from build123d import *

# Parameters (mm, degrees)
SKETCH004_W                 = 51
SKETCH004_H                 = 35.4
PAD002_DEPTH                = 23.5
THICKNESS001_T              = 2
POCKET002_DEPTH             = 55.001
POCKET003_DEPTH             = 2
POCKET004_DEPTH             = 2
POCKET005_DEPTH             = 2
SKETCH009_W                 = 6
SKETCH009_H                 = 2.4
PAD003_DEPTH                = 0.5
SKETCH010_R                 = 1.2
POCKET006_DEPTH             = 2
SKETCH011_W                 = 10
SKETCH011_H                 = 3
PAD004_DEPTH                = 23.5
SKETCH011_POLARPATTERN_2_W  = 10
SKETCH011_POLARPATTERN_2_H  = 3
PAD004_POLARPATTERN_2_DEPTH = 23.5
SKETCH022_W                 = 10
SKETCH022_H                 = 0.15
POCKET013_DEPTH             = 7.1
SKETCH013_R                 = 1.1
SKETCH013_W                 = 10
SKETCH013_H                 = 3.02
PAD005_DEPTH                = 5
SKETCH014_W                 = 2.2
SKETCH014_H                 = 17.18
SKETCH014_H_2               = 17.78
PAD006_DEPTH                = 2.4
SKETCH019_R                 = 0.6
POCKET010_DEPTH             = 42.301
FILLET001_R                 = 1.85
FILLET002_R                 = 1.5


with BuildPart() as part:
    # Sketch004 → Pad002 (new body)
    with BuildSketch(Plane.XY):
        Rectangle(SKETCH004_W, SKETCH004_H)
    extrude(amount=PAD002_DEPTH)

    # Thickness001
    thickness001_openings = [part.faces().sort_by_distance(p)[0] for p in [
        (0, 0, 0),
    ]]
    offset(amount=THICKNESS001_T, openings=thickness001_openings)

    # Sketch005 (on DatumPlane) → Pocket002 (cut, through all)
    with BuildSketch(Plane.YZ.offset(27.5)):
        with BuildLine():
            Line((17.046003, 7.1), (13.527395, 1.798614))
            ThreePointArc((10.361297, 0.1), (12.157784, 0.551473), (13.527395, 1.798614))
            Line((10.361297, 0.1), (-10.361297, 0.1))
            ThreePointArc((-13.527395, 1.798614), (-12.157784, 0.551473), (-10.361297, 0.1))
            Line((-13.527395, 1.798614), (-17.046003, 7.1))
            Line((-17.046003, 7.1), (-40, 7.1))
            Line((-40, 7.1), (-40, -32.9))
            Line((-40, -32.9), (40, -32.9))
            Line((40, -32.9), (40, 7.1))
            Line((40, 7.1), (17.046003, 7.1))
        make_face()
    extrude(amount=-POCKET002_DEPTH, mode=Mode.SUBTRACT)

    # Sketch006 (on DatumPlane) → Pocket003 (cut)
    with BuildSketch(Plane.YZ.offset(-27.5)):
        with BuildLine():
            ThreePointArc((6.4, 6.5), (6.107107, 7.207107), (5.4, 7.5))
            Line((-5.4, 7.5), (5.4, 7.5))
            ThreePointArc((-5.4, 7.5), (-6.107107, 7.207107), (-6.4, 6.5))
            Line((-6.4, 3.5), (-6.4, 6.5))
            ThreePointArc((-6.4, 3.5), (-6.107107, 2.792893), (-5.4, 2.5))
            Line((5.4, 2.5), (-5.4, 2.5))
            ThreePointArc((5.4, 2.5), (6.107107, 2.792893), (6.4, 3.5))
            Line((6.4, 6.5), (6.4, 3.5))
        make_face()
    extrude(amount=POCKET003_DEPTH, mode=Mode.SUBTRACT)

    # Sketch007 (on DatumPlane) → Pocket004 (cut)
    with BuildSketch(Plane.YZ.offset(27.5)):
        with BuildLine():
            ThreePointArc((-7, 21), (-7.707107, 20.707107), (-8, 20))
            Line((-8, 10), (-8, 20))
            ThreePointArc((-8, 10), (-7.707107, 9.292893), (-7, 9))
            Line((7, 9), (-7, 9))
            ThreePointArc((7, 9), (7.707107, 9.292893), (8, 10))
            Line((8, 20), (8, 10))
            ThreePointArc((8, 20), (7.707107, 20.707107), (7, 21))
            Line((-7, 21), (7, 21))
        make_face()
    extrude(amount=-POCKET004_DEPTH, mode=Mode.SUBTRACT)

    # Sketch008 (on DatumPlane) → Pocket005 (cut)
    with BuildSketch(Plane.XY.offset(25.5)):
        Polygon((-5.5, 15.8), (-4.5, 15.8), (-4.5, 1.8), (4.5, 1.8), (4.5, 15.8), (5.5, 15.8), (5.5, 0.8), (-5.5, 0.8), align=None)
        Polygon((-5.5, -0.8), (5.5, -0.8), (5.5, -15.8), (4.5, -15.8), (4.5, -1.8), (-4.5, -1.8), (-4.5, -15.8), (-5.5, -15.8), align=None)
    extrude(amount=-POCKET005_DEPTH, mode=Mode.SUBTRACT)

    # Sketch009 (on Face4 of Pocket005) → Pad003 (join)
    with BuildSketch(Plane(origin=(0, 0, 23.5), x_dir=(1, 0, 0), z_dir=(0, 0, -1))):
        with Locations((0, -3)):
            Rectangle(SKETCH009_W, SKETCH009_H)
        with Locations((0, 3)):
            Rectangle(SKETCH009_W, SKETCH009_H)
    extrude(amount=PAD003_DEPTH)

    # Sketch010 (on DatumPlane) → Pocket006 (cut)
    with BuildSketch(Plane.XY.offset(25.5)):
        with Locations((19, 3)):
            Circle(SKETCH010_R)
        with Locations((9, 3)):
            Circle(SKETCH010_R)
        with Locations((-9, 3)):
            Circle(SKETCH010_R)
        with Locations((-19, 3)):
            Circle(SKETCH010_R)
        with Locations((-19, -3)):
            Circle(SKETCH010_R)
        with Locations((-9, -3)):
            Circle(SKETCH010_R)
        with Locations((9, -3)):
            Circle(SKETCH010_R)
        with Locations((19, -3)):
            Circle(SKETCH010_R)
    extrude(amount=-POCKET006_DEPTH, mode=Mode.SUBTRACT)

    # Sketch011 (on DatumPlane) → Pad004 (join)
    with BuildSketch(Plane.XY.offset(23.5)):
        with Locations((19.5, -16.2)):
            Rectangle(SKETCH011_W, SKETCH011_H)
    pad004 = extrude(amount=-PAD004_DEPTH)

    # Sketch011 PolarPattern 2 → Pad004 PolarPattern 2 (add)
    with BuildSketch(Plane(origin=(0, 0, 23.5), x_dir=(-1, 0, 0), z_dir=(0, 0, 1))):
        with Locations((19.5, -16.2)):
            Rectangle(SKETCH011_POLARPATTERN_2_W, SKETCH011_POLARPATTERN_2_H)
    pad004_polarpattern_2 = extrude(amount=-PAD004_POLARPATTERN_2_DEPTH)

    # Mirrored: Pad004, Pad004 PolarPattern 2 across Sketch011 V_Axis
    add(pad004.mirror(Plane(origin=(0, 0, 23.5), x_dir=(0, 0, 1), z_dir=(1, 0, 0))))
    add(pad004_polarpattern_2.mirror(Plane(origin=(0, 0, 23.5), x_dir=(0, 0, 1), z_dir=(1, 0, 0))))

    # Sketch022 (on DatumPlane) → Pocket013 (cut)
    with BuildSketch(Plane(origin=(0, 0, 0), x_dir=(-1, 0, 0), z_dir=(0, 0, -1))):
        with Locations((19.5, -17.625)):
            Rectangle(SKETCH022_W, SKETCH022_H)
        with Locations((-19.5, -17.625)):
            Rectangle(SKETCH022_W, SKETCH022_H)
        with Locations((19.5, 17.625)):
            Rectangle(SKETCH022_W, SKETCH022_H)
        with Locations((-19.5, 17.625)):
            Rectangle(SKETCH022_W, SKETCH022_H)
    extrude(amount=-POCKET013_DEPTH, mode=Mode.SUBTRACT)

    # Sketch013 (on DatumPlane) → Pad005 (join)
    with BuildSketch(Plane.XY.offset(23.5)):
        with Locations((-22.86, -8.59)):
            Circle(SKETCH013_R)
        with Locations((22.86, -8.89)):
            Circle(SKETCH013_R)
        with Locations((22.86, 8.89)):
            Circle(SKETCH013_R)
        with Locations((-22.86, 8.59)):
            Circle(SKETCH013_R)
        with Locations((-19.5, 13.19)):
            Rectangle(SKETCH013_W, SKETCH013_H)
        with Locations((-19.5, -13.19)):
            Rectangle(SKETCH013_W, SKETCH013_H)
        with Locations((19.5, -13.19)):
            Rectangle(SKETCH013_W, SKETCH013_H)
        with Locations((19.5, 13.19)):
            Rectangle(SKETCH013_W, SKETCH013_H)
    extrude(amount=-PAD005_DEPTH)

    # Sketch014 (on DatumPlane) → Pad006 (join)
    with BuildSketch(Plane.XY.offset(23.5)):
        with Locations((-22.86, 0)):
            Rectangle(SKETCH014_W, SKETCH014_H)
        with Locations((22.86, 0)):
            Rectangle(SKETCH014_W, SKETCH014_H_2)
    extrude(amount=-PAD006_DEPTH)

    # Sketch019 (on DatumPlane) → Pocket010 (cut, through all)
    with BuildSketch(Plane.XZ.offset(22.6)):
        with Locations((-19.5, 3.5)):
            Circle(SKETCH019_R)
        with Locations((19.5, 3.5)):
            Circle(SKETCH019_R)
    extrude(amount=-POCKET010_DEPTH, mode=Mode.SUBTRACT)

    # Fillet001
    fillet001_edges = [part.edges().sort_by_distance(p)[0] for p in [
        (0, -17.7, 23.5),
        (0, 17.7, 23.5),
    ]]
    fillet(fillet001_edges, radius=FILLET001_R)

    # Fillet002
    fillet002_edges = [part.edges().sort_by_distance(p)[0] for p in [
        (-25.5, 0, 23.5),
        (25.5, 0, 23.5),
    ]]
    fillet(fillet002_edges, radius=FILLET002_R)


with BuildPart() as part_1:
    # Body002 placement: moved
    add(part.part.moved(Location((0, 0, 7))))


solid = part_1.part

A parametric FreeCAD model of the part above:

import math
import FreeCAD as App
import Part
import Sketcher

V = App.Vector
Q = App.Units.Quantity


def edges_at(feature, points):
    """Names of the edges that pass closest to the given points."""
    edges = feature.Shape.Edges
    near = lambda p: min(range(len(edges)), key=lambda i: edges[i].distToShape(Part.Vertex(*p))[0])
    return sorted({f"Edge{near(p) + 1}" for p in points})


def faces_at(feature, points):
    """Names of the faces that lie closest to the given points."""
    faces = feature.Shape.Faces
    near = lambda p: min(range(len(faces)), key=lambda i: faces[i].distToShape(Part.Vertex(*p))[0])
    return sorted({f"Face{near(p) + 1}" for p in points})

doc = App.newDocument("Part")
body = doc.addObject("PartDesign::Body", "Body")

# Sketch on XY plane
sketch1 = body.newObject("Sketcher::SketchObject", "Sketch")
sketch1.AttachmentSupport = (doc.getObject("XY_Plane"), [""])
sketch1.MapMode = "FlatFace"
sketch1.addGeometry([
    Part.LineSegment(V(-26, 18, 0), V(-26, -18, 0)),
    Part.LineSegment(V(-26, -18, 0), V(26, -18, 0)),
    Part.LineSegment(V(26, -18, 0), V(26, 18, 0)),
    Part.LineSegment(V(26, 18, 0), V(-26, 18, 0)),
], False)
sketch1.addConstraint([
    Sketcher.Constraint("Coincident", 0, 2, 1, 1),
    Sketcher.Constraint("Coincident", 1, 2, 2, 1),
    Sketcher.Constraint("Coincident", 2, 2, 3, 1),
    Sketcher.Constraint("Coincident", 3, 2, 0, 1),
    Sketcher.Constraint("Vertical", 0),
    Sketcher.Constraint("Horizontal", 1),
    Sketcher.Constraint("Vertical", 2),
    Sketcher.Constraint("Horizontal", 3),
    Sketcher.Constraint("Symmetric", 0, 2, 2, 2, -1, 1),
    Sketcher.Constraint("DistanceX", 1, 1, 1, 2, Q("51 mm")),
    Sketcher.Constraint("DistanceY", 0, 2, 0, 1, Q("35.4 mm")),
])
pad1 = body.newObject("PartDesign::Pad", "Pad")
pad1.Profile = sketch1
pad1.Length = 23.5
doc.recompute()

thickness = body.newObject("PartDesign::Thickness", "Thickness")
thickness.Base = (pad1, faces_at(pad1, [(0, 0, 0)]))
thickness.Value = 2
thickness.Reversed = False
thickness.Join = "Arc"

# Sketch on YZ plane
sketch2 = body.newObject("Sketcher::SketchObject", "Sketch001")
sketch2.AttachmentSupport = (doc.getObject("YZ_Plane"), [""])
sketch2.MapMode = "FlatFace"
sketch2.AttachmentOffset = App.Placement(V(0, 0, 27.5), App.Rotation())
sketch2.addGeometry([
    Part.LineSegment(V(17, 7.1, 0), V(13.5, 1.8, 0)),  # 0
    Part.ArcOfCircle(Part.Circle(V(10.4, 3.9, 0), V(0, 0, 1), 3.8), math.radians(-90), math.radians(-34)),  # 1
    Part.LineSegment(V(10.4, 0.1, 0), V(-10.4, 0.1, 0)),  # 2
    Part.ArcOfCircle(Part.Circle(V(-10.4, 3.9, 0), V(0, 0, 1), 3.8), math.radians(-146), math.radians(-90)),  # 3
    Part.LineSegment(V(-13.5, 1.8, 0), V(-17, 7.1, 0)),  # 4
    Part.LineSegment(V(-17, 7.1, 0), V(-40, 7.1, 0)),  # 5
    Part.LineSegment(V(-40, 7.1, 0), V(-40, -32.9, 0)),  # 6
    Part.LineSegment(V(-40, -32.9, 0), V(40, -32.9, 0)),  # 7
    Part.LineSegment(V(40, -32.9, 0), V(40, 7.1, 0)),  # 8
    Part.LineSegment(V(40, 7.1, 0), V(17, 7.1, 0)),  # 9
], False)
sketch2.addConstraint([
    Sketcher.Constraint("Tangent", 0, 2, 1, 2),
    Sketcher.Constraint("Tangent", 1, 1, 2, 1),
    Sketcher.Constraint("Tangent", 2, 2, 3, 2),
    Sketcher.Constraint("Tangent", 3, 1, 4, 1),
    Sketcher.Constraint("Coincident", 4, 2, 5, 1),
    Sketcher.Constraint("Coincident", 5, 2, 6, 1),
    Sketcher.Constraint("Coincident", 6, 2, 7, 1),
    Sketcher.Constraint("Coincident", 7, 2, 8, 1),
    Sketcher.Constraint("Coincident", 8, 2, 9, 1),
    Sketcher.Constraint("Coincident", 9, 2, 0, 1),
    Sketcher.Constraint("Horizontal", 2),
    Sketcher.Constraint("Horizontal", 5),
    Sketcher.Constraint("Vertical", 6),
    Sketcher.Constraint("Horizontal", 7),
    Sketcher.Constraint("Vertical", 8),
    Sketcher.Constraint("Horizontal", 9),
    Sketcher.Constraint("Equal", 1, 3),
    Sketcher.Constraint("Symmetric", 0, 2, 3, 1, -2),
    Sketcher.Constraint("Symmetric", 5, 2, 8, 2, -2),
    Sketcher.Constraint("Radius", 1, Q("3.800001 mm")),
    Sketcher.Constraint("DistanceX", 7, 1, 7, 2, Q("80 mm")),
    Sketcher.Constraint("DistanceY", 6, 2, 6, 1, Q("40 mm")),
    Sketcher.Constraint("DistanceY", 2, 2, 4, 2, Q("7 mm")),
    Sketcher.Constraint("DistanceY", -1, 1, 1, 3, Q("3.900001 mm")),
    Sketcher.Constraint("DistanceX", 1, 3, 0, 2, Q("3.166099 mm")),
    Sketcher.Constraint("DistanceX", 4, 2, 1, 3, Q("27.407299 mm")),
])
pocket1 = body.newObject("PartDesign::Pocket", "Pocket")
pocket1.Profile = sketch2
pocket1.Type = "ThroughAll"

# Sketch on YZ plane
sketch3 = body.newObject("Sketcher::SketchObject", "Sketch002")
sketch3.AttachmentSupport = (doc.getObject("YZ_Plane"), [""])
sketch3.MapMode = "FlatFace"
sketch3.AttachmentOffset = App.Placement(V(0, 0, -27.5), App.Rotation())
sketch3.addGeometry([
    Part.ArcOfCircle(Part.Circle(V(5.4, 6.5, 0), V(0, 0, 1), 1), math.radians(0), math.radians(90)),  # 0
    Part.LineSegment(V(5.4, 7.5, 0), V(-5.4, 7.5, 0)),  # 1
    Part.ArcOfCircle(Part.Circle(V(-5.4, 6.5, 0), V(0, 0, 1), 1), math.radians(90), math.radians(180)),  # 2
    Part.LineSegment(V(-6.4, 6.5, 0), V(-6.4, 3.5, 0)),  # 3
    Part.ArcOfCircle(Part.Circle(V(-5.4, 3.5, 0), V(0, 0, 1), 1), math.radians(180), math.radians(270)),  # 4
    Part.LineSegment(V(-5.4, 2.5, 0), V(5.4, 2.5, 0)),  # 5
    Part.ArcOfCircle(Part.Circle(V(5.4, 3.5, 0), V(0, 0, 1), 1), math.radians(-90), math.radians(0)),  # 6
    Part.LineSegment(V(6.4, 3.5, 0), V(6.4, 6.5, 0)),  # 7
], False)
sketch3.addConstraint([
    Sketcher.Constraint("Tangent", 0, 2, 1, 1),
    Sketcher.Constraint("Tangent", 1, 2, 2, 1),
    Sketcher.Constraint("Tangent", 2, 2, 3, 1),
    Sketcher.Constraint("Tangent", 3, 2, 4, 1),
    Sketcher.Constraint("Tangent", 4, 2, 5, 1),
    Sketcher.Constraint("Tangent", 5, 2, 6, 1),
    Sketcher.Constraint("Tangent", 6, 2, 7, 1),
    Sketcher.Constraint("Tangent", 7, 2, 0, 1),
    Sketcher.Constraint("Horizontal", 1),
    Sketcher.Constraint("Vertical", 3),
    Sketcher.Constraint("Horizontal", 5),
    Sketcher.Constraint("Vertical", 7),
    Sketcher.Constraint("Equal", 0, 2),
    Sketcher.Constraint("Equal", 2, 4),
    Sketcher.Constraint("Equal", 4, 6),
    Sketcher.Constraint("Radius", 0, Q("0.999999 mm")),
    Sketcher.Constraint("DistanceY", 3, 2, 3, 1, Q("3 mm")),
    Sketcher.Constraint("DistanceX", 1, 2, 1, 1, Q("10.8 mm")),
    Sketcher.Constraint("DistanceX", -1, 1, 0, 3, Q("5.400001 mm")),
    Sketcher.Constraint("DistanceY", -1, 1, 0, 3, Q("6.500001 mm")),
])
pocket2 = body.newObject("PartDesign::Pocket", "Pocket001")
pocket2.Profile = sketch3
pocket2.Length = 2
pocket2.Reversed = True

# Sketch on YZ plane
sketch4 = body.newObject("Sketcher::SketchObject", "Sketch003")
sketch4.AttachmentSupport = (doc.getObject("YZ_Plane"), [""])
sketch4.MapMode = "FlatFace"
sketch4.AttachmentOffset = App.Placement(V(0, 0, 27.5), App.Rotation())
sketch4.addGeometry([
    Part.ArcOfCircle(Part.Circle(V(-7, 20, 0), V(0, 0, 1), 1), math.radians(90), math.radians(180)),  # 0
    Part.LineSegment(V(-8, 20, 0), V(-8, 10, 0)),  # 1
    Part.ArcOfCircle(Part.Circle(V(-7, 10, 0), V(0, 0, 1), 1), math.radians(180), math.radians(270)),  # 2
    Part.LineSegment(V(-7, 9, 0), V(7, 9, 0)),  # 3
    Part.ArcOfCircle(Part.Circle(V(7, 10, 0), V(0, 0, 1), 1), math.radians(-90), math.radians(0)),  # 4
    Part.LineSegment(V(8, 10, 0), V(8, 20, 0)),  # 5
    Part.ArcOfCircle(Part.Circle(V(7, 20, 0), V(0, 0, 1), 1), math.radians(0), math.radians(90)),  # 6
    Part.LineSegment(V(7, 21, 0), V(-7, 21, 0)),  # 7
], False)
sketch4.addConstraint([
    Sketcher.Constraint("Tangent", 0, 2, 1, 1),
    Sketcher.Constraint("Tangent", 1, 2, 2, 1),
    Sketcher.Constraint("Tangent", 2, 2, 3, 1),
    Sketcher.Constraint("Tangent", 3, 2, 4, 1),
    Sketcher.Constraint("Tangent", 4, 2, 5, 1),
    Sketcher.Constraint("Tangent", 5, 2, 6, 1),
    Sketcher.Constraint("Tangent", 6, 2, 7, 1),
    Sketcher.Constraint("Tangent", 7, 2, 0, 1),
    Sketcher.Constraint("Vertical", 1),
    Sketcher.Constraint("Horizontal", 3),
    Sketcher.Constraint("Vertical", 5),
    Sketcher.Constraint("Horizontal", 7),
    Sketcher.Constraint("Equal", 0, 2),
    Sketcher.Constraint("Equal", 2, 4),
    Sketcher.Constraint("Equal", 4, 6),
    Sketcher.Constraint("Radius", 0, Q("0.999999 mm")),
    Sketcher.Constraint("DistanceX", 3, 1, 3, 2, Q("14 mm")),
    Sketcher.Constraint("DistanceY", 1, 2, 1, 1, Q("10 mm")),
    Sketcher.Constraint("DistanceX", 0, 3, -1, 1, Q("7.000001 mm")),
    Sketcher.Constraint("DistanceY", -1, 1, 0, 3, Q("20.000001 mm")),
])
pocket3 = body.newObject("PartDesign::Pocket", "Pocket002")
pocket3.Profile = sketch4
pocket3.Length = 2

# Sketch on XY plane
sketch5 = body.newObject("Sketcher::SketchObject", "Sketch004")
sketch5.AttachmentSupport = (doc.getObject("XY_Plane"), [""])
sketch5.MapMode = "FlatFace"
sketch5.AttachmentOffset = App.Placement(V(0, 0, 25.5), App.Rotation())
sketch5.addGeometry([
    Part.LineSegment(V(-4.5, 15.8, 0), V(-5.5, 15.8, 0)),  # 0
    Part.LineSegment(V(-5.5, 15.8, 0), V(-5.5, 0.8, 0)),  # 1
    Part.LineSegment(V(-5.5, 0.8, 0), V(5.5, 0.8, 0)),  # 2
    Part.LineSegment(V(5.5, 0.8, 0), V(5.5, 15.8, 0)),  # 3
    Part.LineSegment(V(5.5, 15.8, 0), V(4.5, 15.8, 0)),  # 4
    Part.LineSegment(V(4.5, 15.8, 0), V(4.5, 1.8, 0)),  # 5
    Part.LineSegment(V(4.5, 1.8, 0), V(-4.5, 1.8, 0)),  # 6
    Part.LineSegment(V(-4.5, 1.8, 0), V(-4.5, 15.8, 0)),  # 7
    Part.LineSegment(V(5.5, -0.8, 0), V(-5.5, -0.8, 0)),  # 8
    Part.LineSegment(V(-5.5, -0.8, 0), V(-5.5, -15.8, 0)),  # 9
    Part.LineSegment(V(-5.5, -15.8, 0), V(-4.5, -15.8, 0)),  # 10
    Part.LineSegment(V(-4.5, -15.8, 0), V(-4.5, -1.8, 0)),  # 11
    Part.LineSegment(V(-4.5, -1.8, 0), V(4.5, -1.8, 0)),  # 12
    Part.LineSegment(V(4.5, -1.8, 0), V(4.5, -15.8, 0)),  # 13
    Part.LineSegment(V(4.5, -15.8, 0), V(5.5, -15.8, 0)),  # 14
    Part.LineSegment(V(5.5, -15.8, 0), V(5.5, -0.8, 0)),  # 15
], False)
sketch5.addConstraint([
    Sketcher.Constraint("Coincident", 0, 2, 1, 1),
    Sketcher.Constraint("Coincident", 1, 2, 2, 1),
    Sketcher.Constraint("Coincident", 2, 2, 3, 1),
    Sketcher.Constraint("Coincident", 3, 2, 4, 1),
    Sketcher.Constraint("Coincident", 4, 2, 5, 1),
    Sketcher.Constraint("Coincident", 5, 2, 6, 1),
    Sketcher.Constraint("Coincident", 6, 2, 7, 1),
    Sketcher.Constraint("Coincident", 7, 2, 0, 1),
    Sketcher.Constraint("Coincident", 8, 2, 9, 1),
    Sketcher.Constraint("Coincident", 9, 2, 10, 1),
    Sketcher.Constraint("Coincident", 10, 2, 11, 1),
    Sketcher.Constraint("Coincident", 11, 2, 12, 1),
    Sketcher.Constraint("Coincident", 12, 2, 13, 1),
    Sketcher.Constraint("Coincident", 13, 2, 14, 1),
    Sketcher.Constraint("Coincident", 14, 2, 15, 1),
    Sketcher.Constraint("Coincident", 15, 2, 8, 1),
    Sketcher.Constraint("Horizontal", 0),
    Sketcher.Constraint("Vertical", 1),
    Sketcher.Constraint("Horizontal", 2),
    Sketcher.Constraint("Vertical", 3),
    Sketcher.Constraint("Horizontal", 4),
    Sketcher.Constraint("Vertical", 5),
    Sketcher.Constraint("Horizontal", 6),
    Sketcher.Constraint("Vertical", 7),
    Sketcher.Constraint("Horizontal", 8),
    Sketcher.Constraint("Vertical", 9),
    Sketcher.Constraint("Horizontal", 10),
    Sketcher.Constraint("Vertical", 11),
    Sketcher.Constraint("Horizontal", 12),
    Sketcher.Constraint("Vertical", 13),
    Sketcher.Constraint("Horizontal", 14),
    Sketcher.Constraint("Vertical", 15),
    Sketcher.Constraint("Symmetric", 2, 2, 8, 2, -1, 1),
    Sketcher.Constraint("Symmetric", 4, 2, 10, 2, -1, 1),
    Sketcher.Constraint("Symmetric", 6, 2, 12, 2, -1, 1),
    Sketcher.Constraint("Symmetric", 0, 2, 14, 2, -1, 1),
    Sketcher.Constraint("Symmetric", 0, 2, 3, 2, -2),
    Sketcher.Constraint("Vertical", 7, 2, 10, 2),
    Sketcher.Constraint("DistanceX", 0, 2, 0, 1, Q("1 mm")),
    Sketcher.Constraint("DistanceX", 2, 1, 2, 2, Q("11 mm")),
    Sketcher.Constraint("DistanceY", 1, 2, 1, 1, Q("15 mm")),
    Sketcher.Constraint("DistanceY", 5, 2, 5, 1, Q("14 mm")),
    Sketcher.Constraint("DistanceY", -1, 1, 0, 2, Q("15.8 mm")),
])
pocket4 = body.newObject("PartDesign::Pocket", "Pocket003")
pocket4.Profile = sketch5
pocket4.Length = 2

# Sketch on XY plane
sketch6 = body.newObject("Sketcher::SketchObject", "Sketch005")
sketch6.AttachmentSupport = (doc.getObject("XY_Plane"), [""])
sketch6.MapMode = "FlatFace"
sketch6.AttachmentOffset = App.Placement(V(0, 0, 23.5), App.Rotation())
sketch6.addGeometry([
    Part.LineSegment(V(-3, 1.8, 0), V(-3, 4.2, 0)),  # 0
    Part.LineSegment(V(-3, 4.2, 0), V(3, 4.2, 0)),  # 1
    Part.LineSegment(V(3, 4.2, 0), V(3, 1.8, 0)),  # 2
    Part.LineSegment(V(3, 1.8, 0), V(-3, 1.8, 0)),  # 3
    Part.LineSegment(V(-3, -4.2, 0), V(-3, -1.8, 0)),  # 4
    Part.LineSegment(V(-3, -1.8, 0), V(3, -1.8, 0)),  # 5
    Part.LineSegment(V(3, -1.8, 0), V(3, -4.2, 0)),  # 6
    Part.LineSegment(V(3, -4.2, 0), V(-3, -4.2, 0)),  # 7
], False)
sketch6.addConstraint([
    Sketcher.Constraint("Coincident", 0, 2, 1, 1),
    Sketcher.Constraint("Coincident", 1, 2, 2, 1),
    Sketcher.Constraint("Coincident", 2, 2, 3, 1),
    Sketcher.Constraint("Coincident", 3, 2, 0, 1),
    Sketcher.Constraint("Coincident", 4, 2, 5, 1),
    Sketcher.Constraint("Coincident", 5, 2, 6, 1),
    Sketcher.Constraint("Coincident", 6, 2, 7, 1),
    Sketcher.Constraint("Coincident", 7, 2, 4, 1),
    Sketcher.Constraint("Vertical", 0),
    Sketcher.Constraint("Horizontal", 1),
    Sketcher.Constraint("Vertical", 2),
    Sketcher.Constraint("Horizontal", 3),
    Sketcher.Constraint("Vertical", 4),
    Sketcher.Constraint("Horizontal", 5),
    Sketcher.Constraint("Vertical", 6),
    Sketcher.Constraint("Horizontal", 7),
    Sketcher.Constraint("Symmetric", 2, 2, 4, 2, -1, 1),
    Sketcher.Constraint("Symmetric", 0, 2, 6, 2, -1, 1),
    Sketcher.Constraint("Vertical", 3, 2, 4, 2),
    Sketcher.Constraint("DistanceX", 1, 1, 1, 2, Q("6 mm")),
    Sketcher.Constraint("DistanceY", 0, 1, 0, 2, Q("2.4 mm")),
    Sketcher.Constraint("DistanceY", 4, 2, 0, 2, Q("6 mm")),
])
pad2 = body.newObject("PartDesign::Pad", "Pad001")
pad2.Profile = sketch6
pad2.Length = 0.5
pad2.Reversed = True

# Sketch on XY plane
sketch7 = body.newObject("Sketcher::SketchObject", "Sketch006")
sketch7.AttachmentSupport = (doc.getObject("XY_Plane"), [""])
sketch7.MapMode = "FlatFace"
sketch7.AttachmentOffset = App.Placement(V(0, 0, 25.5), App.Rotation())
sketch7.addGeometry([
    Part.Circle(V(19, 3, 0), V(0, 0, 1), 1.2),  # 0
    Part.Circle(V(9, 3, 0), V(0, 0, 1), 1.2),  # 1
    Part.Circle(V(-9, 3, 0), V(0, 0, 1), 1.2),  # 2
    Part.Circle(V(-19, 3, 0), V(0, 0, 1), 1.2),  # 3
    Part.Circle(V(-19, -3, 0), V(0, 0, 1), 1.2),  # 4
    Part.Circle(V(-9, -3, 0), V(0, 0, 1), 1.2),  # 5
    Part.Circle(V(9, -3, 0), V(0, 0, 1), 1.2),  # 6
    Part.Circle(V(19, -3, 0), V(0, 0, 1), 1.2),  # 7
], False)
sketch7.addConstraint([
    Sketcher.Constraint("Equal", 0, 1),
    Sketcher.Constraint("Equal", 1, 2),
    Sketcher.Constraint("Equal", 2, 3),
    Sketcher.Constraint("Equal", 3, 4),
    Sketcher.Constraint("Equal", 4, 5),
    Sketcher.Constraint("Equal", 5, 6),
    Sketcher.Constraint("Equal", 6, 7),
    Sketcher.Constraint("Symmetric", 0, 3, 4, 3, -1, 1),
    Sketcher.Constraint("Symmetric", 1, 3, 5, 3, -1, 1),
    Sketcher.Constraint("Symmetric", 2, 3, 6, 3, -1, 1),
    Sketcher.Constraint("Symmetric", 3, 3, 7, 3, -1, 1),
    Sketcher.Constraint("Symmetric", 1, 3, 2, 3, -2),
    Sketcher.Constraint("Symmetric", 0, 3, 3, 3, -2),
    Sketcher.Constraint("Horizontal", 0, 3, 1, 3),
    Sketcher.Constraint("Diameter", 0, Q("2.4 mm")),
    Sketcher.Constraint("DistanceX", -1, 1, 0, 3, Q("19 mm")),
    Sketcher.Constraint("DistanceY", -1, 1, 0, 3, Q("3 mm")),
    Sketcher.Constraint("DistanceX", -1, 1, 1, 3, Q("9 mm")),
])
pocket5 = body.newObject("PartDesign::Pocket", "Pocket004")
pocket5.Profile = sketch7
pocket5.Length = 2

# Sketch on XY plane
sketch8 = body.newObject("Sketcher::SketchObject", "Sketch007")
sketch8.AttachmentSupport = (doc.getObject("XY_Plane"), [""])
sketch8.MapMode = "FlatFace"
sketch8.AttachmentOffset = App.Placement(V(0, 0, 23.5), App.Rotation())
sketch8.addGeometry([
    Part.LineSegment(V(14.5, -14.7, 0), V(14.5, -17.7, 0)),
    Part.LineSegment(V(14.5, -17.7, 0), V(24.5, -17.7, 0)),
    Part.LineSegment(V(24.5, -17.7, 0), V(24.5, -14.7, 0)),
    Part.LineSegment(V(24.5, -14.7, 0), V(14.5, -14.7, 0)),
], False)
sketch8.addConstraint([
    Sketcher.Constraint("Coincident", 0, 2, 1, 1),
    Sketcher.Constraint("Coincident", 1, 2, 2, 1),
    Sketcher.Constraint("Coincident", 2, 2, 3, 1),
    Sketcher.Constraint("Coincident", 3, 2, 0, 1),
    Sketcher.Constraint("Vertical", 0),
    Sketcher.Constraint("Horizontal", 1),
    Sketcher.Constraint("Vertical", 2),
    Sketcher.Constraint("Horizontal", 3),
    Sketcher.Constraint("DistanceX", 1, 1, 1, 2, Q("10 mm")),
    Sketcher.Constraint("DistanceY", 0, 2, 0, 1, Q("3 mm")),
    Sketcher.Constraint("DistanceX", -1, 1, 0, 2, Q("14.5 mm")),
    Sketcher.Constraint("DistanceY", 0, 2, -1, 1, Q("17.7 mm")),
])
pad3 = body.newObject("PartDesign::Pad", "Pad002")
pad3.Profile = sketch8
pad3.Length = 23.5
pad3.Reversed = True

# Sketch on XY plane
sketch9 = body.newObject("Sketcher::SketchObject", "Sketch008")
sketch9.AttachmentSupport = (doc.getObject("XY_Plane"), [""])
sketch9.MapMode = "FlatFace"
sketch9.AttachmentOffset = App.Placement(V(0, 0, 23.5), App.Rotation())
sketch9.addGeometry([
    Part.LineSegment(V(-14.5, 14.7, 0), V(-14.5, 17.7, 0)),
    Part.LineSegment(V(-14.5, 17.7, 0), V(-24.5, 17.7, 0)),
    Part.LineSegment(V(-24.5, 17.7, 0), V(-24.5, 14.7, 0)),
    Part.LineSegment(V(-24.5, 14.7, 0), V(-14.5, 14.7, 0)),
], False)
sketch9.addConstraint([
    Sketcher.Constraint("Coincident", 0, 2, 1, 1),
    Sketcher.Constraint("Coincident", 1, 2, 2, 1),
    Sketcher.Constraint("Coincident", 2, 2, 3, 1),
    Sketcher.Constraint("Coincident", 3, 2, 0, 1),
    Sketcher.Constraint("Vertical", 0),
    Sketcher.Constraint("Horizontal", 1),
    Sketcher.Constraint("Vertical", 2),
    Sketcher.Constraint("Horizontal", 3),
    Sketcher.Constraint("DistanceX", 1, 2, 1, 1, Q("10 mm")),
    Sketcher.Constraint("DistanceY", 0, 1, 0, 2, Q("3 mm")),
    Sketcher.Constraint("DistanceX", 0, 2, -1, 1, Q("14.5 mm")),
    Sketcher.Constraint("DistanceY", -1, 1, 0, 2, Q("17.7 mm")),
])
pad4 = body.newObject("PartDesign::Pad", "Pad003")
pad4.Profile = sketch9
pad4.Length = 23.5
pad4.Reversed = True
doc.recompute()

mirrored = body.newObject("PartDesign::Mirrored", "Mirrored")
mirrored.Originals = [pad3, pad4]
mirrored.MirrorPlane = (doc.getObject("YZ_Plane"), [""])
body.Tip = mirrored

# Sketch on XY plane
sketch10 = body.newObject("Sketcher::SketchObject", "Sketch009")
sketch10.AttachmentSupport = (doc.getObject("XY_Plane"), [""])
sketch10.MapMode = "FlatFace"
sketch10.addGeometry([
    Part.LineSegment(V(-14.5, -17.55, 0), V(-14.5, -17.7, 0)),  # 0
    Part.LineSegment(V(-14.5, -17.7, 0), V(-24.5, -17.7, 0)),  # 1
    Part.LineSegment(V(-24.5, -17.7, 0), V(-24.5, -17.55, 0)),  # 2
    Part.LineSegment(V(-24.5, -17.55, 0), V(-14.5, -17.55, 0)),  # 3
    Part.LineSegment(V(24.5, -17.55, 0), V(24.5, -17.7, 0)),  # 4
    Part.LineSegment(V(24.5, -17.7, 0), V(14.5, -17.7, 0)),  # 5
    Part.LineSegment(V(14.5, -17.7, 0), V(14.5, -17.55, 0)),  # 6
    Part.LineSegment(V(14.5, -17.55, 0), V(24.5, -17.55, 0)),  # 7
    Part.LineSegment(V(-14.5, 17.7, 0), V(-14.5, 17.55, 0)),  # 8
    Part.LineSegment(V(-14.5, 17.55, 0), V(-24.5, 17.55, 0)),  # 9
    Part.LineSegment(V(-24.5, 17.55, 0), V(-24.5, 17.7, 0)),  # 10
    Part.LineSegment(V(-24.5, 17.7, 0), V(-14.5, 17.7, 0)),  # 11
    Part.LineSegment(V(24.5, 17.7, 0), V(24.5, 17.55, 0)),  # 12
    Part.LineSegment(V(24.5, 17.55, 0), V(14.5, 17.55, 0)),  # 13
    Part.LineSegment(V(14.5, 17.55, 0), V(14.5, 17.7, 0)),  # 14
    Part.LineSegment(V(14.5, 17.7, 0), V(24.5, 17.7, 0)),  # 15
], False)
sketch10.addConstraint([
    Sketcher.Constraint("Coincident", 0, 2, 1, 1),
    Sketcher.Constraint("Coincident", 1, 2, 2, 1),
    Sketcher.Constraint("Coincident", 2, 2, 3, 1),
    Sketcher.Constraint("Coincident", 3, 2, 0, 1),
    Sketcher.Constraint("Coincident", 4, 2, 5, 1),
    Sketcher.Constraint("Coincident", 5, 2, 6, 1),
    Sketcher.Constraint("Coincident", 6, 2, 7, 1),
    Sketcher.Constraint("Coincident", 7, 2, 4, 1),
    Sketcher.Constraint("Coincident", 8, 2, 9, 1),
    Sketcher.Constraint("Coincident", 9, 2, 10, 1),
    Sketcher.Constraint("Coincident", 10, 2, 11, 1),
    Sketcher.Constraint("Coincident", 11, 2, 8, 1),
    Sketcher.Constraint("Coincident", 12, 2, 13, 1),
    Sketcher.Constraint("Coincident", 13, 2, 14, 1),
    Sketcher.Constraint("Coincident", 14, 2, 15, 1),
    Sketcher.Constraint("Coincident", 15, 2, 12, 1),
    Sketcher.Constraint("Vertical", 0),
    Sketcher.Constraint("Horizontal", 1),
    Sketcher.Constraint("Vertical", 2),
    Sketcher.Constraint("Horizontal", 3),
    Sketcher.Constraint("Vertical", 4),
    Sketcher.Constraint("Horizontal", 5),
    Sketcher.Constraint("Vertical", 6),
    Sketcher.Constraint("Horizontal", 7),
    Sketcher.Constraint("Vertical", 8),
    Sketcher.Constraint("Horizontal", 9),
    Sketcher.Constraint("Vertical", 10),
    Sketcher.Constraint("Horizontal", 11),
    Sketcher.Constraint("Vertical", 12),
    Sketcher.Constraint("Horizontal", 13),
    Sketcher.Constraint("Vertical", 14),
    Sketcher.Constraint("Horizontal", 15),
    Sketcher.Constraint("Symmetric", 6, 2, 8, 2, -1, 1),
    Sketcher.Constraint("Symmetric", 4, 2, 10, 2, -1, 1),
    Sketcher.Constraint("Symmetric", 2, 2, 12, 2, -1, 1),
    Sketcher.Constraint("Symmetric", 0, 2, 14, 2, -1, 1),
    Sketcher.Constraint("Symmetric", 1, 2, 4, 2, -2),
    Sketcher.Constraint("Symmetric", 3, 2, 6, 2, -2),
    Sketcher.Constraint("DistanceX", 1, 2, 1, 1, Q("10 mm")),
    Sketcher.Constraint("DistanceX", 0, 2, 4, 2, Q("39 mm")),
    Sketcher.Constraint("DistanceY", 0, 2, 0, 1, Q("0.15 mm")),
    Sketcher.Constraint("DistanceY", 0, 2, -1, 1, Q("17.7 mm")),
])
pocket6 = body.newObject("PartDesign::Pocket", "Pocket005")
pocket6.Profile = sketch10
pocket6.Length = 7.1
pocket6.Reversed = True

# Sketch on XY plane
sketch11 = body.newObject("Sketcher::SketchObject", "Sketch010")
sketch11.AttachmentSupport = (doc.getObject("XY_Plane"), [""])
sketch11.MapMode = "FlatFace"
sketch11.AttachmentOffset = App.Placement(V(0, 0, 23.5), App.Rotation())
sketch11.addGeometry([
    Part.Circle(V(-22.9, -8.6, 0), V(0, 0, 1), 1.1),  # 0
    Part.Circle(V(22.9, -8.9, 0), V(0, 0, 1), 1.1),  # 1
    Part.Circle(V(22.9, 8.9, 0), V(0, 0, 1), 1.1),  # 2
    Part.Circle(V(-22.9, 8.6, 0), V(0, 0, 1), 1.1),  # 3
    Part.LineSegment(V(-24.5, 14.7, 0), V(-24.5, 11.7, 0)),  # 4
    Part.LineSegment(V(-24.5, 11.7, 0), V(-14.5, 11.7, 0)),  # 5
    Part.LineSegment(V(-14.5, 11.7, 0), V(-14.5, 14.7, 0)),  # 6
    Part.LineSegment(V(-14.5, 14.7, 0), V(-24.5, 14.7, 0)),  # 7
    Part.LineSegment(V(-24.5, -11.7, 0), V(-24.5, -14.7, 0)),  # 8
    Part.LineSegment(V(-24.5, -14.7, 0), V(-14.5, -14.7, 0)),  # 9
    Part.LineSegment(V(-14.5, -14.7, 0), V(-14.5, -11.7, 0)),  # 10
    Part.LineSegment(V(-14.5, -11.7, 0), V(-24.5, -11.7, 0)),  # 11
    Part.LineSegment(V(14.5, -11.7, 0), V(14.5, -14.7, 0)),  # 12
    Part.LineSegment(V(14.5, -14.7, 0), V(24.5, -14.7, 0)),  # 13
    Part.LineSegment(V(24.5, -14.7, 0), V(24.5, -11.7, 0)),  # 14
    Part.LineSegment(V(24.5, -11.7, 0), V(14.5, -11.7, 0)),  # 15
    Part.LineSegment(V(14.5, 14.7, 0), V(14.5, 11.7, 0)),  # 16
    Part.LineSegment(V(14.5, 11.7, 0), V(24.5, 11.7, 0)),  # 17
    Part.LineSegment(V(24.5, 11.7, 0), V(24.5, 14.7, 0)),  # 18
    Part.LineSegment(V(24.5, 14.7, 0), V(14.5, 14.7, 0)),  # 19
], False)
sketch11.addConstraint([
    Sketcher.Constraint("Coincident", 4, 2, 5, 1),
    Sketcher.Constraint("Coincident", 5, 2, 6, 1),
    Sketcher.Constraint("Coincident", 6, 2, 7, 1),
    Sketcher.Constraint("Coincident", 7, 2, 4, 1),
    Sketcher.Constraint("Coincident", 8, 2, 9, 1),
    Sketcher.Constraint("Coincident", 9, 2, 10, 1),
    Sketcher.Constraint("Coincident", 10, 2, 11, 1),
    Sketcher.Constraint("Coincident", 11, 2, 8, 1),
    Sketcher.Constraint("Coincident", 12, 2, 13, 1),
    Sketcher.Constraint("Coincident", 13, 2, 14, 1),
    Sketcher.Constraint("Coincident", 14, 2, 15, 1),
    Sketcher.Constraint("Coincident", 15, 2, 12, 1),
    Sketcher.Constraint("Coincident", 16, 2, 17, 1),
    Sketcher.Constraint("Coincident", 17, 2, 18, 1),
    Sketcher.Constraint("Coincident", 18, 2, 19, 1),
    Sketcher.Constraint("Coincident", 19, 2, 16, 1),
    Sketcher.Constraint("Vertical", 4),
    Sketcher.Constraint("Horizontal", 5),
    Sketcher.Constraint("Vertical", 6),
    Sketcher.Constraint("Horizontal", 7),
    Sketcher.Constraint("Vertical", 8),
    Sketcher.Constraint("Horizontal", 9),
    Sketcher.Constraint("Vertical", 10),
    Sketcher.Constraint("Horizontal", 11),
    Sketcher.Constraint("Vertical", 12),
    Sketcher.Constraint("Horizontal", 13),
    Sketcher.Constraint("Vertical", 14),
    Sketcher.Constraint("Horizontal", 15),
    Sketcher.Constraint("Vertical", 16),
    Sketcher.Constraint("Horizontal", 17),
    Sketcher.Constraint("Vertical", 18),
    Sketcher.Constraint("Horizontal", 19),
    Sketcher.Constraint("Equal", 0, 1),
    Sketcher.Constraint("Equal", 1, 2),
    Sketcher.Constraint("Equal", 2, 3),
    Sketcher.Constraint("Symmetric", 6, 2, 12, 2, -1, 1),
    Sketcher.Constraint("Symmetric", 4, 2, 14, 2, -1, 1),
    Sketcher.Constraint("Symmetric", 10, 2, 16, 2, -1, 1),
    Sketcher.Constraint("Symmetric", 8, 2, 18, 2, -1, 1),
    Sketcher.Constraint("Symmetric", 9, 2, 12, 2, -2),
    Sketcher.Constraint("Symmetric", 11, 2, 14, 2, -2),
    Sketcher.Constraint("Symmetric", 1, 3, 2, 3, -1),
    Sketcher.Constraint("Symmetric", 0, 3, 3, 3, -1),
    Sketcher.Constraint("Diameter", 0, Q("2.2 mm")),
    Sketcher.Constraint("DistanceX", 5, 1, 5, 2, Q("10 mm")),
    Sketcher.Constraint("DistanceX", 9, 2, 12, 2, Q("29 mm")),
    Sketcher.Constraint("DistanceY", 4, 2, 4, 1, Q("3.02 mm")),
    Sketcher.Constraint("DistanceY", -1, 1, 6, 2, Q("14.7 mm")),
    Sketcher.Constraint("DistanceY", 1, 3, 0, 3, Q("0.3 mm")),
    Sketcher.Constraint("DistanceX", 0, 3, -1, 1, Q("22.86 mm")),
    Sketcher.Constraint("DistanceY", 0, 3, -1, 1, Q("8.59 mm")),
    Sketcher.Constraint("DistanceX", -1, 1, 1, 3, Q("22.86 mm")),
])
pad5 = body.newObject("PartDesign::Pad", "Pad004")
pad5.Profile = sketch11
pad5.Length = 5
pad5.Reversed = True

# Sketch on XY plane
sketch12 = body.newObject("Sketcher::SketchObject", "Sketch011")
sketch12.AttachmentSupport = (doc.getObject("XY_Plane"), [""])
sketch12.MapMode = "FlatFace"
sketch12.AttachmentOffset = App.Placement(V(0, 0, 23.5), App.Rotation())
sketch12.addGeometry([
    Part.LineSegment(V(-24, 8.6, 0), V(-24, -8.6, 0)),  # 0
    Part.LineSegment(V(-24, -8.6, 0), V(-21.8, -8.6, 0)),  # 1
    Part.LineSegment(V(-21.8, -8.6, 0), V(-21.8, 8.6, 0)),  # 2
    Part.LineSegment(V(-21.8, 8.6, 0), V(-24, 8.6, 0)),  # 3
    Part.LineSegment(V(21.8, 8.9, 0), V(21.8, -8.9, 0)),  # 4
    Part.LineSegment(V(21.8, -8.9, 0), V(24, -8.9, 0)),  # 5
    Part.LineSegment(V(24, -8.9, 0), V(24, 8.9, 0)),  # 6
    Part.LineSegment(V(24, 8.9, 0), V(21.8, 8.9, 0)),  # 7
], False)
sketch12.addConstraint([
    Sketcher.Constraint("Coincident", 0, 2, 1, 1),
    Sketcher.Constraint("Coincident", 1, 2, 2, 1),
    Sketcher.Constraint("Coincident", 2, 2, 3, 1),
    Sketcher.Constraint("Coincident", 3, 2, 0, 1),
    Sketcher.Constraint("Coincident", 4, 2, 5, 1),
    Sketcher.Constraint("Coincident", 5, 2, 6, 1),
    Sketcher.Constraint("Coincident", 6, 2, 7, 1),
    Sketcher.Constraint("Coincident", 7, 2, 4, 1),
    Sketcher.Constraint("Vertical", 0),
    Sketcher.Constraint("Horizontal", 1),
    Sketcher.Constraint("Vertical", 2),
    Sketcher.Constraint("Horizontal", 3),
    Sketcher.Constraint("Vertical", 4),
    Sketcher.Constraint("Horizontal", 5),
    Sketcher.Constraint("Vertical", 6),
    Sketcher.Constraint("Horizontal", 7),
    Sketcher.Constraint("Equal", 3, 5),
    Sketcher.Constraint("DistanceX", 1, 1, 1, 2, Q("2.2 mm")),
    Sketcher.Constraint("DistanceY", 0, 2, 0, 1, Q("17.18 mm")),
    Sketcher.Constraint("DistanceY", 4, 2, 4, 1, Q("17.78 mm")),
    Sketcher.Constraint("DistanceY", 4, 2, 1, 2, Q("0.3 mm")),
    Sketcher.Constraint("DistanceX", 0, 2, -1, 1, Q("23.96 mm")),
    Sketcher.Constraint("DistanceY", 0, 2, -1, 1, Q("8.59 mm")),
    Sketcher.Constraint("DistanceX", -1, 1, 4, 2, Q("21.76 mm")),
])
pad6 = body.newObject("PartDesign::Pad", "Pad005")
pad6.Profile = sketch12
pad6.Length = 2.4
pad6.Reversed = True

# Sketch on XZ plane
sketch13 = body.newObject("Sketcher::SketchObject", "Sketch012")
sketch13.AttachmentSupport = (doc.getObject("XZ_Plane"), [""])
sketch13.MapMode = "FlatFace"
sketch13.AttachmentOffset = App.Placement(V(0, 0, 22.6), App.Rotation())
sketch13.addGeometry([
    Part.Circle(V(-19.5, 3.5, 0), V(0, 0, 1), 0.6),
    Part.Circle(V(19.5, 3.5, 0), V(0, 0, 1), 0.6),
], False)
sketch13.addConstraint([
    Sketcher.Constraint("Equal", 0, 1),
    Sketcher.Constraint("Symmetric", 0, 3, 1, 3, -2),
    Sketcher.Constraint("Diameter", 0, Q("1.2 mm")),
    Sketcher.Constraint("DistanceX", 0, 3, 1, 3, Q("39 mm")),
    Sketcher.Constraint("DistanceY", -1, 1, 0, 3, Q("3.5 mm")),
])
pocket7 = body.newObject("PartDesign::Pocket", "Pocket006")
pocket7.Profile = sketch13
pocket7.Type = "ThroughAll"
doc.recompute()

fillet = body.newObject("PartDesign::Fillet", "Fillet")
fillet.Base = (pocket7, edges_at(pocket7, [(0, -17.7, 23.5), (0, 17.7, 23.5)]))
fillet.Radius = 1.85
doc.recompute()

fillet2 = body.newObject("PartDesign::Fillet", "Fillet001")
fillet2.Base = (fillet, edges_at(fillet, [(-25.5, 0, 23.5), (25.5, 0, 23.5)]))
fillet2.Radius = 1.5
body2 = doc.addObject("PartDesign::Body", "Body001")
doc.recompute()

body.Placement = App.Placement(V(0, 0, 7), App.Rotation(V(0, 0, 1), 0))
boolean = body2.newObject("PartDesign::Boolean", "Boolean")
boolean.Type = "Fuse"
boolean.addObjects([body])

doc.recompute()
